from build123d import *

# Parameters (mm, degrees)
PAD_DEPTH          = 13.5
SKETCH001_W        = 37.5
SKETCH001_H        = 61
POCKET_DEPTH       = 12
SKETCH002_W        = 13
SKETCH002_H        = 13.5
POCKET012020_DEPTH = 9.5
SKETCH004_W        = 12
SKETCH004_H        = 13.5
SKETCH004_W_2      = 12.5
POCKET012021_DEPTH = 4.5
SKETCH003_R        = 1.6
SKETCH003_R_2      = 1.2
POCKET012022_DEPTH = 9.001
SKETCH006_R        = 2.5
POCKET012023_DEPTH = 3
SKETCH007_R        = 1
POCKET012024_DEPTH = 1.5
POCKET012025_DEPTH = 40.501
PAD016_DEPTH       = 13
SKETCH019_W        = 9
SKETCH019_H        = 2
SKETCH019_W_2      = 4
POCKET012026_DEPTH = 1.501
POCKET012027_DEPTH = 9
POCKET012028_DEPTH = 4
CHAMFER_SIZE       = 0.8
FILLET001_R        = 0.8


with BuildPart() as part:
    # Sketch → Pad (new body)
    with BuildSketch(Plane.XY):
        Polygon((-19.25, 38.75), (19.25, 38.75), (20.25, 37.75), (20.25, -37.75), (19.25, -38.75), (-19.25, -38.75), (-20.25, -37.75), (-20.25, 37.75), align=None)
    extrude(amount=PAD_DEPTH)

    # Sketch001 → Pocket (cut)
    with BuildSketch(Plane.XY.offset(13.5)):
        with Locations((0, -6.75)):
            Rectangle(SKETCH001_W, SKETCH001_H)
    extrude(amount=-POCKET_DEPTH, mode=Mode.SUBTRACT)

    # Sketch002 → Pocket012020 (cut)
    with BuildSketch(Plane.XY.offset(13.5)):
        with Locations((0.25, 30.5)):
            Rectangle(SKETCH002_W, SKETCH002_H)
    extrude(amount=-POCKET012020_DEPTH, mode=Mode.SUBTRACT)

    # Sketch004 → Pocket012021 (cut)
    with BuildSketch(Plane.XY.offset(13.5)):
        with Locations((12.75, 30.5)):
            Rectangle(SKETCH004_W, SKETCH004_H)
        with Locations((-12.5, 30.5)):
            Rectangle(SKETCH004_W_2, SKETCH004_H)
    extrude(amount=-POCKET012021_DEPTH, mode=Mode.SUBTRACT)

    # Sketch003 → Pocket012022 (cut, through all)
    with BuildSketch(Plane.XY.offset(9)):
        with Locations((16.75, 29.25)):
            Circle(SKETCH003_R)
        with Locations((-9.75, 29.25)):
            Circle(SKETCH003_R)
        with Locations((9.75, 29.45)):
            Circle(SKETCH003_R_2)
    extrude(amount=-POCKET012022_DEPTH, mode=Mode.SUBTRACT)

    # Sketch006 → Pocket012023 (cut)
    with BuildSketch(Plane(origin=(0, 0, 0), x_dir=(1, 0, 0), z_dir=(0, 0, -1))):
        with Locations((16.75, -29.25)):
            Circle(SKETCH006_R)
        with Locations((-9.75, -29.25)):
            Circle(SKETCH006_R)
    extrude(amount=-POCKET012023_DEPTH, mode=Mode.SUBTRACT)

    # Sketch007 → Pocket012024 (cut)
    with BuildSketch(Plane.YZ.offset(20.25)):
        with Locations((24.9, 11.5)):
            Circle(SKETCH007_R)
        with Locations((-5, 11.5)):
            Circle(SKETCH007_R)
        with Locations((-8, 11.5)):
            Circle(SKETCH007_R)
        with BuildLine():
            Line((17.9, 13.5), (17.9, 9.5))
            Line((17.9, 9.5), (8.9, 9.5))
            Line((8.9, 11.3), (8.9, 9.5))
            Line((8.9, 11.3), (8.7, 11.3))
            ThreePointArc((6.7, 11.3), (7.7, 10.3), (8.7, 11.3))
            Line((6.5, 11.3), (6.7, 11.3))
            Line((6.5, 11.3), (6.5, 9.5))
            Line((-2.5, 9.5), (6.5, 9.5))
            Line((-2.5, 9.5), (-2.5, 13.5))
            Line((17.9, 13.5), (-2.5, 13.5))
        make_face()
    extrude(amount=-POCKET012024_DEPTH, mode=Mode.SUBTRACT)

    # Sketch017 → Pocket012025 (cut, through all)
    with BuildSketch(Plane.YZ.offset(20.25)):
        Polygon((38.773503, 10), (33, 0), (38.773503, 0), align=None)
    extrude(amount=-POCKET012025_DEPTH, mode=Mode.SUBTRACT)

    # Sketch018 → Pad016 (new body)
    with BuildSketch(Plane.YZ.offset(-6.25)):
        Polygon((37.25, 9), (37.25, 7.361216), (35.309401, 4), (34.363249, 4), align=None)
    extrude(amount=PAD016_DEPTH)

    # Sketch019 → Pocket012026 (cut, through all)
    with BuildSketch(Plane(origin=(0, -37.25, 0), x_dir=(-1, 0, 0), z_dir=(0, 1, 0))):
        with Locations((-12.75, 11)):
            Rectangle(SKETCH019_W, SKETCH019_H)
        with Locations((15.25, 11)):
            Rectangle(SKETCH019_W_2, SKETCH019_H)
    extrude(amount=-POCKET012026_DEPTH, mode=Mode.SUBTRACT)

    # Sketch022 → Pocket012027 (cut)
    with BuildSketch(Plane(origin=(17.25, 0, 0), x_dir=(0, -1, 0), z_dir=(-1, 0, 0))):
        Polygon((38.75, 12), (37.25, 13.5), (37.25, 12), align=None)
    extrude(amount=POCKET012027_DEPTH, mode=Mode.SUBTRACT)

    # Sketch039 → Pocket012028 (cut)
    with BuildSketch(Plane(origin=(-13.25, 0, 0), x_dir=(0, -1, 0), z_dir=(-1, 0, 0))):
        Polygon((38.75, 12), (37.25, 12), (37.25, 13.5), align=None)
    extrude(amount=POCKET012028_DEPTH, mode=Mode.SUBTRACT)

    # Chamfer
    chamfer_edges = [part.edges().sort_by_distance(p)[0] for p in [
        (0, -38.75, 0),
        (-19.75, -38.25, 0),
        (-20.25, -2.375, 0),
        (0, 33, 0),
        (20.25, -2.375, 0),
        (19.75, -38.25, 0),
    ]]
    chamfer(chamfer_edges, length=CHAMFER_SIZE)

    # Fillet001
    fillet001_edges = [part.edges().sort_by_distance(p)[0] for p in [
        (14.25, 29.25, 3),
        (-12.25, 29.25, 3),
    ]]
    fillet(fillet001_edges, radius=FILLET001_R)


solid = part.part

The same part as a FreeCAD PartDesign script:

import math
import FreeCAD as App
import Part
import Sketcher

V = App.Vector
Q = App.Units.Quantity


def edges_at(feature, points):
    """Names of the edges that pass closest to the given points."""
    edges = feature.Shape.Edges
    near = lambda p: min(range(len(edges)), key=lambda i: edges[i].distToShape(Part.Vertex(*p))[0])
    return sorted({f"Edge{near(p) + 1}" for p in points})

doc = App.newDocument("Part")
body = doc.addObject("PartDesign::Body", "Body")

# Sketch on XY plane
sketch1 = body.newObject("Sketcher::SketchObject", "Sketch")
sketch1.AttachmentSupport = (doc.getObject("XY_Plane"), [""])
sketch1.MapMode = "FlatFace"
sketch1.addGeometry(Part.LineSegment(V(19.2, 38.8, 0), V(-19.2, 38.8, 0)), False)
sketch1.addGeometry(Part.LineSegment(V(-19.2, 38.8, 0), V(-20.2, 37.8, 0)), False)
sketch1.addGeometry(Part.LineSegment(V(-20.2, 37.8, 0), V(-20.2, -37.8, 0)), False)
sketch1.addGeometry(Part.LineSegment(V(-20.2, -37.8, 0), V(-19.2, -38.8, 0)), False)
sketch1.addGeometry(Part.LineSegment(V(-19.2, -38.8, 0), V(19.2, -38.8, 0)), False)
sketch1.addGeometry(Part.LineSegment(V(19.2, -38.8, 0), V(20.2, -37.8, 0)), False)
sketch1.addGeometry(Part.LineSegment(V(20.2, -37.8, 0), V(20.2, 37.8, 0)), False)
sketch1.addGeometry(Part.LineSegment(V(20.2, 37.8, 0), V(19.2, 38.8, 0)), False)
sketch1.addConstraint(Sketcher.Constraint("Coincident", 0, 2, 1, 1))
sketch1.addConstraint(Sketcher.Constraint("Coincident", 1, 2, 2, 1))
sketch1.addConstraint(Sketcher.Constraint("Coincident", 2, 2, 3, 1))
sketch1.addConstraint(Sketcher.Constraint("Coincident", 3, 2, 4, 1))
sketch1.addConstraint(Sketcher.Constraint("Coincident", 4, 2, 5, 1))
sketch1.addConstraint(Sketcher.Constraint("Coincident", 5, 2, 6, 1))
sketch1.addConstraint(Sketcher.Constraint("Coincident", 6, 2, 7, 1))
sketch1.addConstraint(Sketcher.Constraint("Coincident", 7, 2, 0, 1))
sketch1.addConstraint(Sketcher.Constraint("Horizontal", 0))
sketch1.addConstraint(Sketcher.Constraint("Vertical", 2))
sketch1.addConstraint(Sketcher.Constraint("Horizontal", 4))
sketch1.addConstraint(Sketcher.Constraint("Vertical", 6))
sketch1.addConstraint(Sketcher.Constraint("Symmetric", 0, 2, 4, 2, -1, 1))
sketch1.addConstraint(Sketcher.Constraint("Symmetric", 1, 2, 5, 2, -1, 1))
sketch1.addConstraint(Sketcher.Constraint("Perpendicular", 1, 3))
sketch1.addConstraint(Sketcher.Constraint("Perpendicular", 5, 7))
sketch1.addConstraint(Sketcher.Constraint("Horizontal", 2, 2, 5, 2))
sketch1.addConstraint(Sketcher.Constraint("Horizontal", 1, 2, 6, 2))
sketch1.addConstraint(Sketcher.Constraint("Vertical", 0, 2, 3, 2))
sketch1.addConstraint(Sketcher.Constraint("DistanceX", 0, 2, 0, 1, Q("38.5 mm")))
sketch1.addConstraint(Sketcher.Constraint("DistanceY", 2, 2, 2, 1, Q("75.5 mm")))
sketch1.addConstraint(Sketcher.Constraint("DistanceX", 1, 2, 0, 2, Q("1 mm")))
pad1 = body.newObject("PartDesign::Pad", "Pad")
pad1.Profile = sketch1
pad1.Length = 13.5

# Sketch on XY plane
sketch2 = body.newObject("Sketcher::SketchObject", "Sketch001")
sketch2.AttachmentSupport = (doc.getObject("XY_Plane"), [""])
sketch2.MapMode = "FlatFace"
sketch2.AttachmentOffset = App.Placement(V(0, 0, 13.5), App.Rotation())
sketch2.addGeometry(Part.LineSegment(V(-19, 24, 0), V(-19, -37, 0)), False)
sketch2.addGeometry(Part.LineSegment(V(-19, -37, 0), V(19, -37, 0)), False)
sketch2.addGeometry(Part.LineSegment(V(19, -37, 0), V(19, 24, 0)), False)
sketch2.addGeometry(Part.LineSegment(V(19, 24, 0), V(-19, 24, 0)), False)
sketch2.addConstraint(Sketcher.Constraint("Coincident", 0, 2, 1, 1))
sketch2.addConstraint(Sketcher.Constraint("Coincident", 1, 2, 2, 1))
sketch2.addConstraint(Sketcher.Constraint("Coincident", 2, 2, 3, 1))
sketch2.addConstraint(Sketcher.Constraint("Coincident", 3, 2, 0, 1))
sketch2.addConstraint(Sketcher.Constraint("Vertical", 0))
sketch2.addConstraint(Sketcher.Constraint("Horizontal", 1))
sketch2.addConstraint(Sketcher.Constraint("Vertical", 2))
sketch2.addConstraint(Sketcher.Constraint("Horizontal", 3))
sketch2.addConstraint(Sketcher.Constraint("DistanceY", 0, 2, 0, 1, Q("61 mm")))
sketch2.addConstraint(Sketcher.Constraint("DistanceX", 1, 1, 1, 2, Q("37.5 mm")))
sketch2.addConstraint(Sketcher.Constraint("DistanceX", 0, 2, -1, 1, Q("18.75 mm")))
sketch2.addConstraint(Sketcher.Constraint("DistanceY", 0, 2, -1, 1, Q("37.25 mm")))
pocket1 = body.newObject("PartDesign::Pocket", "Pocket")
pocket1.Profile = sketch2
pocket1.Length = 12

# Sketch on XY plane
sketch3 = body.newObject("Sketcher::SketchObject", "Sketch002")
sketch3.AttachmentSupport = (doc.getObject("XY_Plane"), [""])
sketch3.MapMode = "FlatFace"
sketch3.AttachmentOffset = App.Placement(V(0, 0, 13.5), App.Rotation())
sketch3.addGeometry(Part.LineSegment(V(-6, 37, 0), V(-6, 24, 0)), False)
sketch3.addGeometry(Part.LineSegment(V(-6, 24, 0), V(7, 24, 0)), False)
sketch3.addGeometry(Part.LineSegment(V(7, 24, 0), V(7, 37, 0)), False)
sketch3.addGeometry(Part.LineSegment(V(7, 37, 0), V(-6, 37, 0)), False)
sketch3.addConstraint(Sketcher.Constraint("Coincident", 0, 2, 1, 1))
sketch3.addConstraint(Sketcher.Constraint("Coincident", 1, 2, 2, 1))
sketch3.addConstraint(Sketcher.Constraint("Coincident", 2, 2, 3, 1))
sketch3.addConstraint(Sketcher.Constraint("Coincident", 3, 2, 0, 1))
sketch3.addConstraint(Sketcher.Constraint("Vertical", 0))
sketch3.addConstraint(Sketcher.Constraint("Horizontal", 1))
sketch3.addConstraint(Sketcher.Constraint("Vertical", 2))
sketch3.addConstraint(Sketcher.Constraint("Horizontal", 3))
sketch3.addConstraint(Sketcher.Constraint("DistanceX", 1, 1, 1, 2, Q("13 mm")))
sketch3.addConstraint(Sketcher.Constraint("DistanceY", 0, 2, 0, 1, Q("13.5 mm")))
sketch3.addConstraint(Sketcher.Constraint("DistanceX", 0, 2, -1, 1, Q("6.25 mm")))
sketch3.addConstraint(Sketcher.Constraint("DistanceY", -1, 1, 0, 2, Q("23.75 mm")))
pocket2 = body.newObject("PartDesign::Pocket", "Pocket001")
pocket2.Profile = sketch3
pocket2.Length = 9.5

# Sketch on XY plane
sketch4 = body.newObject("Sketcher::SketchObject", "Sketch003")
sketch4.AttachmentSupport = (doc.getObject("XY_Plane"), [""])
sketch4.MapMode = "FlatFace"
sketch4.AttachmentOffset = App.Placement(V(0, 0, 13.5), App.Rotation())
sketch4.addGeometry(Part.LineSegment(V(7, 37, 0), V(7, 24, 0)), False)
sketch4.addGeometry(Part.LineSegment(V(7, 24, 0), V(19, 24, 0)), False)
sketch4.addGeometry(Part.LineSegment(V(19, 24, 0), V(19, 37, 0)), False)
sketch4.addGeometry(Part.LineSegment(V(19, 37, 0), V(7, 37, 0)), False)
sketch4.addGeometry(Part.LineSegment(V(-19, 37, 0), V(-19, 24, 0)), False)
sketch4.addGeometry(Part.LineSegment(V(-19, 24, 0), V(-6, 24, 0)), False)
sketch4.addGeometry(Part.LineSegment(V(-6, 24, 0), V(-6, 37, 0)), False)
sketch4.addGeometry(Part.LineSegment(V(-6, 37, 0), V(-19, 37, 0)), False)
sketch4.addConstraint(Sketcher.Constraint("Coincident", 0, 2, 1, 1))
sketch4.addConstraint(Sketcher.Constraint("Coincident", 1, 2, 2, 1))
sketch4.addConstraint(Sketcher.Constraint("Coincident", 2, 2, 3, 1))
sketch4.addConstraint(Sketcher.Constraint("Coincident", 3, 2, 0, 1))
sketch4.addConstraint(Sketcher.Constraint("Coincident", 4, 2, 5, 1))
sketch4.addConstraint(Sketcher.Constraint("Coincident", 5, 2, 6, 1))
sketch4.addConstraint(Sketcher.Constraint("Coincident", 6, 2, 7, 1))
sketch4.addConstraint(Sketcher.Constraint("Coincident", 7, 2, 4, 1))
sketch4.addConstraint(Sketcher.Constraint("Vertical", 0))
sketch4.addConstraint(Sketcher.Constraint("Horizontal", 1))
sketch4.addConstraint(Sketcher.Constraint("Vertical", 2))
sketch4.addConstraint(Sketcher.Constraint("Horizontal", 3))
sketch4.addConstraint(Sketcher.Constraint("Vertical", 4))
sketch4.addConstraint(Sketcher.Constraint("Horizontal", 5))
sketch4.addConstraint(Sketcher.Constraint("Vertical", 6))
sketch4.addConstraint(Sketcher.Constraint("Horizontal", 7))
sketch4.addConstraint(Sketcher.Constraint("Symmetric", 1, 2, 4, 2, -2))
sketch4.addConstraint(Sketcher.Constraint("Horizontal", 3, 2, 6, 2))
sketch4.addConstraint(Sketcher.Constraint("DistanceX", 1, 1, 1, 2, Q("12 mm")))
sketch4.addConstraint(Sketcher.Constraint("DistanceX", 5, 1, 5, 2, Q("12.5 mm")))
sketch4.addConstraint(Sketcher.Constraint("DistanceY", 0, 2, 0, 1, Q("13.5 mm")))
sketch4.addConstraint(Sketcher.Constraint("DistanceX", 5, 2, 0, 2, Q("13 mm")))
sketch4.addConstraint(Sketcher.Constraint("DistanceY", -1, 1, 0, 2, Q("23.75 mm")))
pocket3 = body.newObject("PartDesign::Pocket", "Pocket002")
pocket3.Profile = sketch4
pocket3.Length = 4.5

# Sketch on XY plane
sketch5 = body.newObject("Sketcher::SketchObject", "Sketch004")
sketch5.AttachmentSupport = (doc.getObject("XY_Plane"), [""])
sketch5.MapMode = "FlatFace"
sketch5.AttachmentOffset = App.Placement(V(0, 0, 9), App.Rotation())
sketch5.addGeometry(Part.Circle(V(16.8, 29.2, 0), V(0, 0, 1), 1.6), False)
sketch5.addGeometry(Part.Circle(V(-9.8, 29.2, 0), V(0, 0, 1), 1.6), False)
sketch5.addGeometry(Part.Circle(V(9.8, 29.4, 0), V(0, 0, 1), 1.2), False)
sketch5.addConstraint(Sketcher.Constraint("Equal", 0, 1))
sketch5.addConstraint(Sketcher.Constraint("Horizontal", 0, 3, 1, 3))
sketch5.addConstraint(Sketcher.Constraint("Diameter", 0, Q("3.2 mm")))
sketch5.addConstraint(Sketcher.Constraint("Diameter", 2, Q("2.4 mm")))
sketch5.addConstraint(Sketcher.Constraint("DistanceX", 2, 3, 0, 3, Q("7 mm")))
sketch5.addConstraint(Sketcher.Constraint("DistanceX", 1, 3, 0, 3, Q("26.5 mm")))
sketch5.addConstraint(Sketcher.Constraint("DistanceY", 0, 3, 2, 3, Q("0.2 mm")))
sketch5.addConstraint(Sketcher.Constraint("DistanceX", -1, 1, 0, 3, Q("16.75 mm")))
sketch5.addConstraint(Sketcher.Constraint("DistanceY", -1, 1, 0, 3, Q("29.25 mm")))
pocket4 = body.newObject("PartDesign::Pocket", "Pocket003")
pocket4.Profile = sketch5
pocket4.Type = "ThroughAll"

# Sketch on XY plane
sketch6 = body.newObject("Sketcher::SketchObject", "Sketch005")
sketch6.AttachmentSupport = (doc.getObject("XY_Plane"), [""])
sketch6.MapMode = "FlatFace"
sketch6.addGeometry(Part.Circle(V(16.8, 29.2, 0), V(0, 0, 1), 2.5), False)
sketch6.addGeometry(Part.Circle(V(-9.8, 29.2, 0), V(0, 0, 1), 2.5), False)
sketch6.addConstraint(Sketcher.Constraint("Equal", 0, 1))
sketch6.addConstraint(Sketcher.Constraint("Horizontal", 0, 3, 1, 3))
sketch6.addConstraint(Sketcher.Constraint("Diameter", 0, Q("5 mm")))
sketch6.addConstraint(Sketcher.Constraint("DistanceX", 1, 3, 0, 3, Q("26.5 mm")))
sketch6.addConstraint(Sketcher.Constraint("DistanceX", -1, 1, 0, 3, Q("16.75 mm")))
sketch6.addConstraint(Sketcher.Constraint("DistanceY", -1, 1, 0, 3, Q("29.25 mm")))
pocket5 = body.newObject("PartDesign::Pocket", "Pocket004")
pocket5.Profile = sketch6
pocket5.Length = 3
pocket5.Reversed = True

# Sketch on YZ plane
sketch7 = body.newObject("Sketcher::SketchObject", "Sketch006")
sketch7.AttachmentSupport = (doc.getObject("YZ_Plane"), [""])
sketch7.MapMode = "FlatFace"
sketch7.AttachmentOffset = App.Placement(V(0, 0, 20.25), App.Rotation())
sketch7.addGeometry(Part.Circle(V(24.9, 11.5, 0), V(0, 0, 1), 1), False)
sketch7.addGeometry(Part.Circle(V(-5, 11.5, 0), V(0, 0, 1), 1), False)
sketch7.addGeometry(Part.Circle(V(-8, 11.5, 0), V(0, 0, 1), 1), False)
sketch7.addGeometry(Part.LineSegment(V(17.9, 9.5, 0), V(17.9, 13.5, 0)), False)
sketch7.addGeometry(Part.LineSegment(V(17.9, 13.5, 0), V(-2.5, 13.5, 0)), False)
sketch7.addGeometry(Part.LineSegment(V(-2.5, 13.5, 0), V(-2.5, 9.5, 0)), False)
sketch7.addGeometry(Part.LineSegment(V(-2.5, 9.5, 0), V(6.5, 9.5, 0)), False)
sketch7.addGeometry(Part.LineSegment(V(6.5, 9.5, 0), V(6.5, 11.3, 0)), False)
sketch7.addGeometry(Part.LineSegment(V(6.5, 11.3, 0), V(6.7, 11.3, 0)), False)
sketch7.addGeometry(Part.ArcOfCircle(Part.Circle(V(7.7, 11.3, 0), V(0, 0, 1), 1), math.radians(180), math.radians(360)), False)
sketch7.addGeometry(Part.LineSegment(V(8.7, 11.3, 0), V(8.9, 11.3, 0)), False)
sketch7.addGeometry(Part.LineSegment(V(8.9, 11.3, 0), V(8.9, 9.5, 0)), False)
sketch7.addGeometry(Part.LineSegment(V(8.9, 9.5, 0), V(17.9, 9.5, 0)), False)
sketch7.addConstraint(Sketcher.Constraint("Coincident", 3, 2, 4, 1))
sketch7.addConstraint(Sketcher.Constraint("Coincident", 4, 2, 5, 1))
sketch7.addConstraint(Sketcher.Constraint("Coincident", 5, 2, 6, 1))
sketch7.addConstraint(Sketcher.Constraint("Coincident", 6, 2, 7, 1))
sketch7.addConstraint(Sketcher.Constraint("Coincident", 7, 2, 8, 1))
sketch7.addConstraint(Sketcher.Constraint("Coincident", 8, 2, 9, 1))
sketch7.addConstraint(Sketcher.Constraint("Coincident", 9, 2, 10, 1))
sketch7.addConstraint(Sketcher.Constraint("Coincident", 10, 2, 11, 1))
sketch7.addConstraint(Sketcher.Constraint("Coincident", 11, 2, 12, 1))
sketch7.addConstraint(Sketcher.Constraint("Coincident", 12, 2, 3, 1))
sketch7.addConstraint(Sketcher.Constraint("Vertical", 3))
sketch7.addConstraint(Sketcher.Constraint("Horizontal", 4))
sketch7.addConstraint(Sketcher.Constraint("Vertical", 5))
sketch7.addConstraint(Sketcher.Constraint("Horizontal", 6))
sketch7.addConstraint(Sketcher.Constraint("Vertical", 7))
sketch7.addConstraint(Sketcher.Constraint("Horizontal", 8))
sketch7.addConstraint(Sketcher.Constraint("Horizontal", 10))
sketch7.addConstraint(Sketcher.Constraint("Vertical", 11))
sketch7.addConstraint(Sketcher.Constraint("Horizontal", 12))
sketch7.addConstraint(Sketcher.Constraint("Equal", 0, 1))
sketch7.addConstraint(Sketcher.Constraint("Equal", 1, 2))
sketch7.addConstraint(Sketcher.Constraint("Equal", 2, 9))
sketch7.addConstraint(Sketcher.Constraint("Horizontal", 0, 3, 1, 3))
sketch7.addConstraint(Sketcher.Constraint("Horizontal", 1, 3, 2, 3))
sketch7.addConstraint(Sketcher.Constraint("Horizontal", 9, 3, 7, 2))
sketch7.addConstraint(Sketcher.Constraint("Horizontal", 8, 2, 9, 2))
sketch7.addConstraint(Sketcher.Constraint("Horizontal", 6, 2, 11, 2))
sketch7.addConstraint(Sketcher.Constraint("Equal", 8, 10))
sketch7.addConstraint(Sketcher.Constraint("Equal", 6, 12))
sketch7.addConstraint(Sketcher.Constraint("Diameter", 0, Q("2 mm")))
sketch7.addConstraint(Sketcher.Constraint("DistanceX", 6, 1, 6, 2, Q("9 mm")))
sketch7.addConstraint(Sketcher.Constraint("DistanceY", 3, 1, 3, 2, Q("4 mm")))
sketch7.addConstraint(Sketcher.Constraint("DistanceX", 4, 2, 4, 1, Q("20.4 mm")))
sketch7.addConstraint(Sketcher.Constraint("DistanceY", 7, 1, 7, 2, Q("1.8 mm")))
sketch7.addConstraint(Sketcher.Constraint("DistanceX", 1, 3, -1, 1, Q("5 mm")))
sketch7.addConstraint(Sketcher.Constraint("DistanceX", 2, 3, -1, 1, Q("8 mm")))
sketch7.addConstraint(Sketcher.Constraint("DistanceX", 3, 2, 0, 3, Q("7 mm")))
sketch7.addConstraint(Sketcher.Constraint("DistanceY", 0, 3, 3, 2, Q("2 mm")))
sketch7.addConstraint(Sketcher.Constraint("DistanceX", -1, 1, 0, 3, Q("24.9 mm")))
sketch7.addConstraint(Sketcher.Constraint("DistanceY", -1, 1, 0, 3, Q("11.5 mm")))
pocket6 = body.newObject("PartDesign::Pocket", "Pocket005")
pocket6.Profile = sketch7
pocket6.Length = 1.5

# Sketch on YZ plane
sketch8 = body.newObject("Sketcher::SketchObject", "Sketch007")
sketch8.AttachmentSupport = (doc.getObject("YZ_Plane"), [""])
sketch8.MapMode = "FlatFace"
sketch8.AttachmentOffset = App.Placement(V(0, 0, 20.25), App.Rotation())
sketch8.addGeometry(Part.LineSegment(V(39, 10, 0), V(33, 0, 0)), False)
sketch8.addGeometry(Part.LineSegment(V(33, 0, 0), V(39, 0, 0)), False)
sketch8.addGeometry(Part.LineSegment(V(39, 0, 0), V(39, 10, 0)), False)
sketch8.addConstraint(Sketcher.Constraint("Coincident", 0, 2, 1, 1))
sketch8.addConstraint(Sketcher.Constraint("Coincident", 1, 2, 2, 1))
sketch8.addConstraint(Sketcher.Constraint("Coincident", 2, 2, 0, 1))
sketch8.addConstraint(Sketcher.Constraint("Horizontal", 1))
sketch8.addConstraint(Sketcher.Constraint("Vertical", 2))
sketch8.addConstraint(Sketcher.Constraint("PointOnObject", 0, 2, -1))
sketch8.addConstraint(Sketcher.Constraint("DistanceY", 2, 1, 2, 2, Q("10 mm")))
sketch8.addConstraint(Sketcher.Constraint("Angle", 0, Q("-120.000001 deg")))
sketch8.addConstraint(Sketcher.Constraint("DistanceX", -1, 1, 0, 2, Q("33 mm")))
pocket7 = body.newObject("PartDesign::Pocket", "Pocket006")
pocket7.Profile = sketch8
pocket7.Type = "ThroughAll"

# Sketch on YZ plane
sketch9 = body.newObject("Sketcher::SketchObject", "Sketch008")
sketch9.AttachmentSupport = (doc.getObject("YZ_Plane"), [""])
sketch9.MapMode = "FlatFace"
sketch9.AttachmentOffset = App.Placement(V(0, 0, -6.25), App.Rotation())
sketch9.addGeometry(Part.LineSegment(V(37.2, 7.4, 0), V(37.2, 9, 0)), False)
sketch9.addGeometry(Part.LineSegment(V(37.2, 9, 0), V(34.4, 4, 0)), False)
sketch9.addGeometry(Part.LineSegment(V(34.4, 4, 0), V(35.3, 4, 0)), False)
sketch9.addGeometry(Part.LineSegment(V(35.3, 4, 0), V(37.2, 7.4, 0)), False)
sketch9.addConstraint(Sketcher.Constraint("Coincident", 0, 2, 1, 1))
sketch9.addConstraint(Sketcher.Constraint("Coincident", 1, 2, 2, 1))
sketch9.addConstraint(Sketcher.Constraint("Coincident", 2, 2, 3, 1))
sketch9.addConstraint(Sketcher.Constraint("Coincident", 3, 2, 0, 1))
sketch9.addConstraint(Sketcher.Constraint("Vertical", 0))
sketch9.addConstraint(Sketcher.Constraint("Horizontal", 2))
sketch9.addConstraint(Sketcher.Constraint("Parallel", 1, 3))
sketch9.addConstraint(Sketcher.Constraint("Angle", 1, Q("-119.999997 deg")))
sketch9.addConstraint(Sketcher.Constraint("DistanceY", -1, 1, 0, 2, Q("9 mm")))
sketch9.addConstraint(Sketcher.Constraint("DistanceY", -1, 1, 1, 2, Q("4 mm")))
sketch9.addConstraint(Sketcher.Constraint("DistanceX", -1, 1, 0, 2, Q("37.25 mm")))
sketch9.addConstraint(Sketcher.Constraint("DistanceX", 2, 1, 2, 2, Q("0.946152 mm")))
pad2 = body.newObject("PartDesign::Pad", "Pad001")
pad2.Profile = sketch9
pad2.Length = 13

# Sketch on XZ plane
sketch10 = body.newObject("Sketcher::SketchObject", "Sketch009")
sketch10.AttachmentSupport = (doc.getObject("XZ_Plane"), [""])
sketch10.MapMode = "FlatFace"
sketch10.AttachmentOffset = App.Placement(V(0, 0, 37.25), App.Rotation())
sketch10.addGeometry(Part.LineSegment(V(17.2, 12, 0), V(17.2, 10, 0)), False)
sketch10.addGeometry(Part.LineSegment(V(17.2, 10, 0), V(8.2, 10, 0)), False)
sketch10.addGeometry(Part.LineSegment(V(8.2, 10, 0), V(8.2, 12, 0)), False)
sketch10.addGeometry(Part.LineSegment(V(8.2, 12, 0), V(17.2, 12, 0)), False)
sketch10.addGeometry(Part.LineSegment(V(-13.2, 12, 0), V(-13.2, 10, 0)), False)
sketch10.addGeometry(Part.LineSegment(V(-13.2, 10, 0), V(-17.2, 10, 0)), False)
sketch10.addGeometry(Part.LineSegment(V(-17.2, 10, 0), V(-17.2, 12, 0)), False)
sketch10.addGeometry(Part.LineSegment(V(-17.2, 12, 0), V(-13.2, 12, 0)), False)
sketch10.addConstraint(Sketcher.Constraint("Coincident", 0, 2, 1, 1))
sketch10.addConstraint(Sketcher.Constraint("Coincident", 1, 2, 2, 1))
sketch10.addConstraint(Sketcher.Constraint("Coincident", 2, 2, 3, 1))
sketch10.addConstraint(Sketcher.Constraint("Coincident", 3, 2, 0, 1))
sketch10.addConstraint(Sketcher.Constraint("Coincident", 4, 2, 5, 1))
sketch10.addConstraint(Sketcher.Constraint("Coincident", 5, 2, 6, 1))
sketch10.addConstraint(Sketcher.Constraint("Coincident", 6, 2, 7, 1))
sketch10.addConstraint(Sketcher.Constraint("Coincident", 7, 2, 4, 1))
sketch10.addConstraint(Sketcher.Constraint("Vertical", 0))
sketch10.addConstraint(Sketcher.Constraint("Horizontal", 1))
sketch10.addConstraint(Sketcher.Constraint("Vertical", 2))
sketch10.addConstraint(Sketcher.Constraint("Horizontal", 3))
sketch10.addConstraint(Sketcher.Constraint("Vertical", 4))
sketch10.addConstraint(Sketcher.Constraint("Horizontal", 5))
sketch10.addConstraint(Sketcher.Constraint("Vertical", 6))
sketch10.addConstraint(Sketcher.Constraint("Horizontal", 7))
sketch10.addConstraint(Sketcher.Constraint("Symmetric", 0, 2, 5, 2, -2))
sketch10.addConstraint(Sketcher.Constraint("Horizontal", 3, 2, 6, 2))
sketch10.addConstraint(Sketcher.Constraint("DistanceX", 1, 2, 1, 1, Q("9 mm")))
sketch10.addConstraint(Sketcher.Constraint("DistanceX", 5, 2, 5, 1, Q("4 mm")))
sketch10.addConstraint(Sketcher.Constraint("DistanceY", 0, 2, 0, 1, Q("2 mm")))
sketch10.addConstraint(Sketcher.Constraint("DistanceY", -1, 1, 0, 2, Q("10 mm")))
sketch10.addConstraint(Sketcher.Constraint("DistanceX", 4, 2, 1, 2, Q("21.5 mm")))
pocket8 = body.newObject("PartDesign::Pocket", "Pocket007")
pocket8.Profile = sketch10
pocket8.Type = "ThroughAll"
pocket8.Reversed = True

# Sketch on YZ plane
sketch11 = body.newObject("Sketcher::SketchObject", "Sketch010")
sketch11.AttachmentSupport = (doc.getObject("YZ_Plane"), [""])
sketch11.MapMode = "FlatFace"
sketch11.AttachmentOffset = App.Placement(V(0, 0, 17.25), App.Rotation())
sketch11.addGeometry(Part.LineSegment(V(-38.8, 12, 0), V(-37.2, 13.5, 0)), False)
sketch11.addGeometry(Part.LineSegment(V(-37.2, 13.5, 0), V(-37.2, 12, 0)), False)
sketch11.addGeometry(Part.LineSegment(V(-37.2, 12, 0), V(-38.8, 12, 0)), False)
sketch11.addConstraint(Sketcher.Constraint("Coincident", 0, 2, 1, 1))
sketch11.addConstraint(Sketcher.Constraint("Coincident", 1, 2, 2, 1))
sketch11.addConstraint(Sketcher.Constraint("Coincident", 2, 2, 0, 1))
sketch11.addConstraint(Sketcher.Constraint("Vertical", 1))
sketch11.addConstraint(Sketcher.Constraint("Horizontal", 2))
sketch11.addConstraint(Sketcher.Constraint("Equal", 2, 1))
sketch11.addConstraint(Sketcher.Constraint("DistanceX", 2, 2, 2, 1, Q("1.5 mm")))
sketch11.addConstraint(Sketcher.Constraint("DistanceY", -1, 1, 1, 2, Q("12 mm")))
sketch11.addConstraint(Sketcher.Constraint("DistanceX", 0, 2, -1, 1, Q("37.25 mm")))
pocket9 = body.newObject("PartDesign::Pocket", "Pocket008")
pocket9.Profile = sketch11
pocket9.Length = 9

# Sketch on YZ plane
sketch12 = body.newObject("Sketcher::SketchObject", "Sketch011")
sketch12.AttachmentSupport = (doc.getObject("YZ_Plane"), [""])
sketch12.MapMode = "FlatFace"
sketch12.AttachmentOffset = App.Placement(V(0, 0, -13.25), App.Rotation())
sketch12.addGeometry(Part.LineSegment(V(-37.2, 12, 0), V(-38.8, 12, 0)), False)
sketch12.addGeometry(Part.LineSegment(V(-38.8, 12, 0), V(-37.2, 13.5, 0)), False)
sketch12.addGeometry(Part.LineSegment(V(-37.2, 13.5, 0), V(-37.2, 12, 0)), False)
sketch12.addConstraint(Sketcher.Constraint("Coincident", 0, 2, 1, 1))
sketch12.addConstraint(Sketcher.Constraint("Coincident", 1, 2, 2, 1))
sketch12.addConstraint(Sketcher.Constraint("Coincident", 2, 2, 0, 1))
sketch12.addConstraint(Sketcher.Constraint("Horizontal", 0))
sketch12.addConstraint(Sketcher.Constraint("Vertical", 2))
sketch12.addConstraint(Sketcher.Constraint("Equal", 0, 2))
sketch12.addConstraint(Sketcher.Constraint("DistanceX", 0, 2, 0, 1, Q("1.5 mm")))
sketch12.addConstraint(Sketcher.Constraint("DistanceY", -1, 1, 0, 2, Q("12 mm")))
sketch12.addConstraint(Sketcher.Constraint("DistanceX", 0, 2, -1, 1, Q("38.75 mm")))
pocket10 = body.newObject("PartDesign::Pocket", "Pocket009")
pocket10.Profile = sketch12
pocket10.Length = 4
doc.recompute()

chamfer = body.newObject("PartDesign::Chamfer", "Chamfer")
chamfer.Base = (pocket10, edges_at(pocket10, [
    (0, -38.75, 0),
    (-19.75, -38.25, 0),
    (-20.25, -2.375, 0),
    (0, 33, 0),
    (20.25, -2.375, 0),
    (19.75, -38.25, 0),
]))
chamfer.Size = 0.8
doc.recompute()

fillet = body.newObject("PartDesign::Fillet", "Fillet")
fillet.Base = (chamfer, edges_at(chamfer, [(14.25, 29.25, 3), (-12.25, 29.25, 3)]))
fillet.Radius = 0.8

doc.recompute()
